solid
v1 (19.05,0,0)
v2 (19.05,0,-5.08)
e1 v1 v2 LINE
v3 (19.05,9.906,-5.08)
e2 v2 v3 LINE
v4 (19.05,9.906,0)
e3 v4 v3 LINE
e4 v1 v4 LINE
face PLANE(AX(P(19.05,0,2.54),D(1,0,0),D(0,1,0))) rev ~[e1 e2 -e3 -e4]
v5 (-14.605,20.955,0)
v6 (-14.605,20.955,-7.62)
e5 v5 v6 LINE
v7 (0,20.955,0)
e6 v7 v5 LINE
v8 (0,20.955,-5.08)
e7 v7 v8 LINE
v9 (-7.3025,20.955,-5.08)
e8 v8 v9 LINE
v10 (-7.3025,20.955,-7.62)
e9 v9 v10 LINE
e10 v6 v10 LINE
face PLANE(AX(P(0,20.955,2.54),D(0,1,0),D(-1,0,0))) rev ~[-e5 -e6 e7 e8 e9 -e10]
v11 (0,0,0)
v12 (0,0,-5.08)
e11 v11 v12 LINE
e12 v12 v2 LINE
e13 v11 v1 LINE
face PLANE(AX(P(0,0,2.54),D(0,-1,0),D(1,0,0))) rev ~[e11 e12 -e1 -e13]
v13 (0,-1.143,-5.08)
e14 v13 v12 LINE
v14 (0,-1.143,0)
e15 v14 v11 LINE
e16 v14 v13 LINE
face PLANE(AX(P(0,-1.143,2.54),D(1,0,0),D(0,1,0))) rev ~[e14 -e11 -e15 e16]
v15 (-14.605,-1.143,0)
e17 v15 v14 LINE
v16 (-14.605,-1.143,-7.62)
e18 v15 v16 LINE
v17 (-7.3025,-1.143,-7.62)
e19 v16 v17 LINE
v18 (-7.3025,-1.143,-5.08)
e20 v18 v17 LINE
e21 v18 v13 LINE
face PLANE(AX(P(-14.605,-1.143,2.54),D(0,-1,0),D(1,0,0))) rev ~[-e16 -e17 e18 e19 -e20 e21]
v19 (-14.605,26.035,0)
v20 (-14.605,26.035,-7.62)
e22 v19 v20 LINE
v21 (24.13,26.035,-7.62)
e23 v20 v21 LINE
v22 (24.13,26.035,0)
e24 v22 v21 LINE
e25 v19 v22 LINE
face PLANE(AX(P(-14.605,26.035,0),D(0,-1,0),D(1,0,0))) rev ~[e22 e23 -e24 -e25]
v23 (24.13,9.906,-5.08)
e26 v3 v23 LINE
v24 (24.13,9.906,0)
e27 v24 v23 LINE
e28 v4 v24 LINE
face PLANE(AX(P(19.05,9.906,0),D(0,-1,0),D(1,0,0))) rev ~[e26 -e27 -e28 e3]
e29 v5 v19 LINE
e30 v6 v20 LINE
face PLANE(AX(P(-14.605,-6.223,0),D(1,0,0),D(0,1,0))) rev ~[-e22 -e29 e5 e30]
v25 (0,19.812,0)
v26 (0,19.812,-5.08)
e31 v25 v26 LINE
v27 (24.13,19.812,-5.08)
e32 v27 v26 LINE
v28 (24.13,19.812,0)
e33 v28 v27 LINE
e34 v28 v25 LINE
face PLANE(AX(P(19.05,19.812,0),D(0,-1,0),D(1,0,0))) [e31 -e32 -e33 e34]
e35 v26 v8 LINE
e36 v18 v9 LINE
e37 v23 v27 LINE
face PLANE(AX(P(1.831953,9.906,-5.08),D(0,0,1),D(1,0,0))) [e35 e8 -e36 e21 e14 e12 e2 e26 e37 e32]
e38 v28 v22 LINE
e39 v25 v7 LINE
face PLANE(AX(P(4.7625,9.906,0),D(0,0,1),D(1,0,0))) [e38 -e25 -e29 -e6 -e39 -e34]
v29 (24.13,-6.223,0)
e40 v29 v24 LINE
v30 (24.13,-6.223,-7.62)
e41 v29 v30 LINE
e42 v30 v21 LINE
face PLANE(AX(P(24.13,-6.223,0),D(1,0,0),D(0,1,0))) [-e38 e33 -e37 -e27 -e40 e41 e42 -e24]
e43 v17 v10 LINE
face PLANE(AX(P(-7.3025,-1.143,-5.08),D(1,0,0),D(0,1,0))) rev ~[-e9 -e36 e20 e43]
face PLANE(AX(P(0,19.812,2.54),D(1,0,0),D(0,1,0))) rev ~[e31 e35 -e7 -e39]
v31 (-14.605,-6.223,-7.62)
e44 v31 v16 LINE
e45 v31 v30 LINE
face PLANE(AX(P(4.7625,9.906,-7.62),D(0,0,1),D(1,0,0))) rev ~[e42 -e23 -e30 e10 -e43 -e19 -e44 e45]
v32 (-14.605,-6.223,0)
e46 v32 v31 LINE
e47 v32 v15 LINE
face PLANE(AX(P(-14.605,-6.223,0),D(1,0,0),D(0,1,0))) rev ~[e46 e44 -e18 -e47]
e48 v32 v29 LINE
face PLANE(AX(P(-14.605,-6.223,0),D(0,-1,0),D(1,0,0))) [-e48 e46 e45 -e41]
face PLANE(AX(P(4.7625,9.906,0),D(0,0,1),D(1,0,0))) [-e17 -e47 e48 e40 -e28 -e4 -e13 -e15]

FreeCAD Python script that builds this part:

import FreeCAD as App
import Part
import Sketcher
Q = App.Units.Quantity

doc = App.newDocument("Part")
body = doc.addObject("PartDesign::Body", "Body")

# Sketch on XY plane
sketch1 = body.newObject("Sketcher::SketchObject", "Sketch")
sketch1.AttachmentSupport = (doc.getObject("XY_Plane"), [""])
sketch1.MapMode = "FlatFace"
sketch1.addGeometry([
    Part.LineSegment(App.Vector(0, 20, 0), App.Vector(0, 0, 0)),
    Part.LineSegment(App.Vector(0, 0, 0), App.Vector(19, 0, 0)),
    Part.LineSegment(App.Vector(19, 0, 0), App.Vector(19, 20, 0)),
    Part.LineSegment(App.Vector(19, 20, 0), App.Vector(0, 20, 0)),
], False)
sketch1.addConstraint([
    Sketcher.Constraint("Coincident", 0, 2, 1, 1),
    Sketcher.Constraint("Coincident", 1, 2, 2, 1),
    Sketcher.Constraint("Coincident", 2, 2, 3, 1),
    Sketcher.Constraint("Coincident", 3, 2, 0, 1),
    Sketcher.Constraint("Vertical", 0),
    Sketcher.Constraint("Horizontal", 1),
    Sketcher.Constraint("Vertical", 2),
    Sketcher.Constraint("Horizontal", 3),
    Sketcher.Constraint("Coincident", 0, 2, -1, 1),
    Sketcher.Constraint("DistanceX", 1, 1, 1, 2, Q("0.75 in")),
    Sketcher.Constraint("DistanceY", 0, 2, 0, 1, Q("0.78 in")),
])
pad1 = body.newObject("PartDesign::Pad", "Pad")
pad1.Profile = sketch1
pad1.Length = Q("0.1 in")

# Sketch on XY plane
sketch2 = body.newObject("Sketcher::SketchObject", "Sketch001")
sketch2.AttachmentSupport = (doc.getObject("XY_Plane"), [""])
sketch2.MapMode = "FlatFace"
sketch2.addGeometry([
    Part.LineSegment(App.Vector(-15, 0, 0), App.Vector(0, 0, 0)),
    Part.LineSegment(App.Vector(0, 0, 0), App.Vector(0, 21, 0)),
    Part.LineSegment(App.Vector(0, 21, 0), App.Vector(-15, 21, 0)),
    Part.LineSegment(App.Vector(-15, 21, 0), App.Vector(-15, 0, 0)),
], False)
sketch2.addConstraint([
    Sketcher.Constraint("Coincident", 0, 2, 1, 1),
    Sketcher.Constraint("Coincident", 1, 2, 2, 1),
    Sketcher.Constraint("Coincident", 2, 2, 3, 1),
    Sketcher.Constraint("Coincident", 3, 2, 0, 1),
    Sketcher.Constraint("Horizontal", 0),
    Sketcher.Constraint("Vertical", 1),
    Sketcher.Constraint("Horizontal", 2),
    Sketcher.Constraint("Vertical", 3),
    Sketcher.Constraint("Coincident", 0, 2, -1, 1),
    Sketcher.Constraint("DistanceX", 0, 1, 0, 2, Q("0.575 in")),
    Sketcher.Constraint("DistanceY", 1, 1, 1, 2, Q("0.825 in")),
])
pad2 = body.newObject("PartDesign::Pad", "Pad001")
pad2.Profile = sketch2
pad2.Length = Q("0.1 in")

# Sketch on XY plane
sketch3 = body.newObject("Sketcher::SketchObject", "Sketch002")
sketch3.AttachmentSupport = (doc.getObject("XY_Plane"), [""])
sketch3.MapMode = "FlatFace"
sketch3.addGeometry([
    Part.LineSegment(App.Vector(-14.6, 0, 0), App.Vector(-14.6, -1.1, 0)),
    Part.LineSegment(App.Vector(-14.6, -1.1, 0), App.Vector(0, -1.1, 0)),
    Part.LineSegment(App.Vector(0, -1.1, 0), App.Vector(0, 0, 0)),
    Part.LineSegment(App.Vector(0, 0, 0), App.Vector(-14.6, 0, 0)),
], False)
sketch3.addConstraint([
    Sketcher.Constraint("Coincident", 0, 2, 1, 1),
    Sketcher.Constraint("Coincident", 1, 2, 2, 1),
    Sketcher.Constraint("Coincident", 2, 2, 3, 1),
    Sketcher.Constraint("Coincident", 3, 2, 0, 1),
    Sketcher.Constraint("Vertical", 0),
    Sketcher.Constraint("Horizontal", 1),
    Sketcher.Constraint("Vertical", 2),
    Sketcher.Constraint("Horizontal", 3),
    Sketcher.Constraint("Coincident", 2, 2, -1, 1),
    Sketcher.Constraint("DistanceX", 1, 1, 1, 2, Q("0.575 in")),
    Sketcher.Constraint("DistanceY", 0, 2, 0, 1, Q("0.045 in")),
])
pad3 = body.newObject("PartDesign::Pad", "Pad002")
pad3.Profile = sketch3
pad3.Length = Q("0.1 in")

# Sketch on XY plane
sketch4 = body.newObject("Sketcher::SketchObject", "Sketch003")
sketch4.AttachmentSupport = (doc.getObject("XY_Plane"), [""])
sketch4.MapMode = "FlatFace"
sketch4.addGeometry([
    Part.LineSegment(App.Vector(-15, 26, 0), App.Vector(-15, -6, 0)),
    Part.LineSegment(App.Vector(-15, -6, 0), App.Vector(24, -6, 0)),
    Part.LineSegment(App.Vector(24, -6, 0), App.Vector(24, 26, 0)),
    Part.LineSegment(App.Vector(24, 26, 0), App.Vector(-15, 26, 0)),
], False)
sketch4.addConstraint([
    Sketcher.Constraint("Coincident", 0, 2, 1, 1),
    Sketcher.Constraint("Coincident", 1, 2, 2, 1),
    Sketcher.Constraint("Coincident", 2, 2, 3, 1),
    Sketcher.Constraint("Coincident", 3, 2, 0, 1),
    Sketcher.Constraint("Vertical", 0),
    Sketcher.Constraint("Horizontal", 1),
    Sketcher.Constraint("Vertical", 2),
    Sketcher.Constraint("Horizontal", 3),
    Sketcher.Constraint("DistanceY", 0, 2, 0, 1, Q("1.27 in")),
    Sketcher.Constraint("DistanceX", 1, 1, 1, 2, Q("1.525 in")),
    Sketcher.Constraint("DistanceX", -1, 1, 1, 2, Q("0.95 in")),
    Sketcher.Constraint("DistanceY", 0, 2, -1, 1, Q("0.245 in")),
])
pad4 = body.newObject("PartDesign::Pad", "Pad003")
pad4.Profile = sketch4
pad4.Length = Q("0.3 in")
pad4.Reversed = True

# Sketch on XY plane
sketch5 = body.newObject("Sketcher::SketchObject", "Sketch004")
sketch5.AttachmentSupport = (doc.getObject("XY_Plane"), [""])
sketch5.MapMode = "FlatFace"
sketch5.AttachmentOffset = App.Placement(App.Vector(0, 0, 0.1 * 25.4), App.Rotation())
sketch5.addGeometry([
    Part.LineSegment(App.Vector(0, 0, 0), App.Vector(19.1, 0, 0)),  # 0
    Part.LineSegment(App.Vector(19.1, 0, 0), App.Vector(19.1, 19.8, 0)),  # 1
    Part.LineSegment(App.Vector(19.1, 19.8, 0), App.Vector(0, 19.8, 0)),  # 2
    Part.LineSegment(App.Vector(0, 19.8, 0), App.Vector(0, 21, 0)),  # 3
    Part.LineSegment(App.Vector(0, 21, 0), App.Vector(-14.6, 21, 0)),  # 4
    Part.LineSegment(App.Vector(-14.6, 21, 0), App.Vector(-14.6, -1.1, 0)),  # 5
    Part.LineSegment(App.Vector(-14.6, -1.1, 0), App.Vector(0, -1.1, 0)),  # 6
    Part.LineSegment(App.Vector(0, -1.1, 0), App.Vector(0, 0, 0)),  # 7
], False)
sketch5.addConstraint([
    Sketcher.Constraint("Coincident", 0, 2, 1, 1),
    Sketcher.Constraint("Coincident", 1, 2, 2, 1),
    Sketcher.Constraint("Coincident", 2, 2, 3, 1),
    Sketcher.Constraint("Coincident", 3, 2, 4, 1),
    Sketcher.Constraint("Coincident", 4, 2, 5, 1),
    Sketcher.Constraint("Coincident", 5, 2, 6, 1),
    Sketcher.Constraint("Coincident", 6, 2, 7, 1),
    Sketcher.Constraint("Coincident", 7, 2, 0, 1),
    Sketcher.Constraint("Horizontal", 0),
    Sketcher.Constraint("Vertical", 1),
    Sketcher.Constraint("Horizontal", 2),
    Sketcher.Constraint("Vertical", 3),
    Sketcher.Constraint("Horizontal", 4),
    Sketcher.Constraint("Vertical", 5),
    Sketcher.Constraint("Horizontal", 6),
    Sketcher.Constraint("Vertical", 7),
    Sketcher.Constraint("Coincident", 7, 2, -1, 1),
    Sketcher.Constraint("PointOnObject", 2, 2, -2),
    Sketcher.Constraint("Equal", 3, 7),
    Sketcher.Constraint("DistanceX", 0, 1, 0, 2, Q("0.75 in")),
    Sketcher.Constraint("DistanceY", 1, 1, 1, 2, Q("0.78 in")),
    Sketcher.Constraint("DistanceY", 5, 2, 5, 1, Q("0.87 in")),
    Sketcher.Constraint("DistanceX", 4, 2, 4, 1, Q("0.575 in")),
])
pocket1 = body.newObject("PartDesign::Pocket", "Pocket")
pocket1.Profile = sketch5
pocket1.Length = Q("0.3 in")

# Sketch on XY plane
sketch6 = body.newObject("Sketcher::SketchObject", "Sketch005")
sketch6.AttachmentSupport = (doc.getObject("XY_Plane"), [""])
sketch6.MapMode = "FlatFace"
sketch6.AttachmentOffset = App.Placement(App.Vector(0, 0, -0.2 * 25.4), App.Rotation())
sketch6.addGeometry([
    Part.LineSegment(App.Vector(-15, 21, 0), App.Vector(-15, -1, 0)),
    Part.LineSegment(App.Vector(-15, -1, 0), App.Vector(-7, -1, 0)),
    Part.LineSegment(App.Vector(-7, -1, 0), App.Vector(-7, 21, 0)),
    Part.LineSegment(App.Vector(-7, 21, 0), App.Vector(-15, 21, 0)),
], False)
sketch6.addConstraint([
    Sketcher.Constraint("Coincident", 0, 2, 1, 1),
    Sketcher.Constraint("Coincident", 1, 2, 2, 1),
    Sketcher.Constraint("Coincident", 2, 2, 3, 1),
    Sketcher.Constraint("Coincident", 3, 2, 0, 1),
    Sketcher.Constraint("Vertical", 0),
    Sketcher.Constraint("Horizontal", 1),
    Sketcher.Constraint("Vertical", 2),
    Sketcher.Constraint("Horizontal", 3),
    Sketcher.Constraint("DistanceY", 0, 2, 0, 1, Q("0.87 in")),
    Sketcher.Constraint("DistanceX", 1, 1, 1, 2, Q("0.2875 in")),
    Sketcher.Constraint("DistanceX", 0, 2, -1, 1, Q("0.575 in")),
    Sketcher.Constraint("DistanceY", 0, 2, -1, 1, Q("0.045 in")),
])
pocket2 = body.newObject("PartDesign::Pocket", "Pocket001")
pocket2.Profile = sketch6
pocket2.Length = Q("0.1 in")

# Sketch on XY plane
sketch7 = body.newObject("Sketcher::SketchObject", "Sketch006")
sketch7.AttachmentSupport = (doc.getObject("XY_Plane"), [""])
sketch7.MapMode = "FlatFace"
sketch7.addGeometry([
    Part.LineSegment(App.Vector(19, 20, 0), App.Vector(19, 10, 0)),
    Part.LineSegment(App.Vector(19, 10, 0), App.Vector(24, 10, 0)),
    Part.LineSegment(App.Vector(24, 10, 0), App.Vector(24, 20, 0)),
    Part.LineSegment(App.Vector(24, 20, 0), App.Vector(19, 20, 0)),
], False)
sketch7.addConstraint([
    Sketcher.Constraint("Coincident", 0, 2, 1, 1),
    Sketcher.Constraint("Coincident", 1, 2, 2, 1),
    Sketcher.Constraint("Coincident", 2, 2, 3, 1),
    Sketcher.Constraint("Coincident", 3, 2, 0, 1),
    Sketcher.Constraint("Vertical", 0),
    Sketcher.Constraint("Horizontal", 1),
    Sketcher.Constraint("Vertical", 2),
    Sketcher.Constraint("Horizontal", 3),
    Sketcher.Constraint("DistanceX", 1, 1, 1, 2, Q("0.2 in")),
    Sketcher.Constraint("DistanceY", 0, 2, 0, 1, Q("0.39 in")),
    Sketcher.Constraint("DistanceX", -1, 1, 0, 2, Q("0.75 in")),
    Sketcher.Constraint("DistanceY", -1, 1, 0, 2, Q("0.39 in")),
])
pocket3 = body.newObject("PartDesign::Pocket", "Pocket002")
pocket3.Profile = sketch7
pocket3.Length = Q("0.2 in")

doc.recompute()
